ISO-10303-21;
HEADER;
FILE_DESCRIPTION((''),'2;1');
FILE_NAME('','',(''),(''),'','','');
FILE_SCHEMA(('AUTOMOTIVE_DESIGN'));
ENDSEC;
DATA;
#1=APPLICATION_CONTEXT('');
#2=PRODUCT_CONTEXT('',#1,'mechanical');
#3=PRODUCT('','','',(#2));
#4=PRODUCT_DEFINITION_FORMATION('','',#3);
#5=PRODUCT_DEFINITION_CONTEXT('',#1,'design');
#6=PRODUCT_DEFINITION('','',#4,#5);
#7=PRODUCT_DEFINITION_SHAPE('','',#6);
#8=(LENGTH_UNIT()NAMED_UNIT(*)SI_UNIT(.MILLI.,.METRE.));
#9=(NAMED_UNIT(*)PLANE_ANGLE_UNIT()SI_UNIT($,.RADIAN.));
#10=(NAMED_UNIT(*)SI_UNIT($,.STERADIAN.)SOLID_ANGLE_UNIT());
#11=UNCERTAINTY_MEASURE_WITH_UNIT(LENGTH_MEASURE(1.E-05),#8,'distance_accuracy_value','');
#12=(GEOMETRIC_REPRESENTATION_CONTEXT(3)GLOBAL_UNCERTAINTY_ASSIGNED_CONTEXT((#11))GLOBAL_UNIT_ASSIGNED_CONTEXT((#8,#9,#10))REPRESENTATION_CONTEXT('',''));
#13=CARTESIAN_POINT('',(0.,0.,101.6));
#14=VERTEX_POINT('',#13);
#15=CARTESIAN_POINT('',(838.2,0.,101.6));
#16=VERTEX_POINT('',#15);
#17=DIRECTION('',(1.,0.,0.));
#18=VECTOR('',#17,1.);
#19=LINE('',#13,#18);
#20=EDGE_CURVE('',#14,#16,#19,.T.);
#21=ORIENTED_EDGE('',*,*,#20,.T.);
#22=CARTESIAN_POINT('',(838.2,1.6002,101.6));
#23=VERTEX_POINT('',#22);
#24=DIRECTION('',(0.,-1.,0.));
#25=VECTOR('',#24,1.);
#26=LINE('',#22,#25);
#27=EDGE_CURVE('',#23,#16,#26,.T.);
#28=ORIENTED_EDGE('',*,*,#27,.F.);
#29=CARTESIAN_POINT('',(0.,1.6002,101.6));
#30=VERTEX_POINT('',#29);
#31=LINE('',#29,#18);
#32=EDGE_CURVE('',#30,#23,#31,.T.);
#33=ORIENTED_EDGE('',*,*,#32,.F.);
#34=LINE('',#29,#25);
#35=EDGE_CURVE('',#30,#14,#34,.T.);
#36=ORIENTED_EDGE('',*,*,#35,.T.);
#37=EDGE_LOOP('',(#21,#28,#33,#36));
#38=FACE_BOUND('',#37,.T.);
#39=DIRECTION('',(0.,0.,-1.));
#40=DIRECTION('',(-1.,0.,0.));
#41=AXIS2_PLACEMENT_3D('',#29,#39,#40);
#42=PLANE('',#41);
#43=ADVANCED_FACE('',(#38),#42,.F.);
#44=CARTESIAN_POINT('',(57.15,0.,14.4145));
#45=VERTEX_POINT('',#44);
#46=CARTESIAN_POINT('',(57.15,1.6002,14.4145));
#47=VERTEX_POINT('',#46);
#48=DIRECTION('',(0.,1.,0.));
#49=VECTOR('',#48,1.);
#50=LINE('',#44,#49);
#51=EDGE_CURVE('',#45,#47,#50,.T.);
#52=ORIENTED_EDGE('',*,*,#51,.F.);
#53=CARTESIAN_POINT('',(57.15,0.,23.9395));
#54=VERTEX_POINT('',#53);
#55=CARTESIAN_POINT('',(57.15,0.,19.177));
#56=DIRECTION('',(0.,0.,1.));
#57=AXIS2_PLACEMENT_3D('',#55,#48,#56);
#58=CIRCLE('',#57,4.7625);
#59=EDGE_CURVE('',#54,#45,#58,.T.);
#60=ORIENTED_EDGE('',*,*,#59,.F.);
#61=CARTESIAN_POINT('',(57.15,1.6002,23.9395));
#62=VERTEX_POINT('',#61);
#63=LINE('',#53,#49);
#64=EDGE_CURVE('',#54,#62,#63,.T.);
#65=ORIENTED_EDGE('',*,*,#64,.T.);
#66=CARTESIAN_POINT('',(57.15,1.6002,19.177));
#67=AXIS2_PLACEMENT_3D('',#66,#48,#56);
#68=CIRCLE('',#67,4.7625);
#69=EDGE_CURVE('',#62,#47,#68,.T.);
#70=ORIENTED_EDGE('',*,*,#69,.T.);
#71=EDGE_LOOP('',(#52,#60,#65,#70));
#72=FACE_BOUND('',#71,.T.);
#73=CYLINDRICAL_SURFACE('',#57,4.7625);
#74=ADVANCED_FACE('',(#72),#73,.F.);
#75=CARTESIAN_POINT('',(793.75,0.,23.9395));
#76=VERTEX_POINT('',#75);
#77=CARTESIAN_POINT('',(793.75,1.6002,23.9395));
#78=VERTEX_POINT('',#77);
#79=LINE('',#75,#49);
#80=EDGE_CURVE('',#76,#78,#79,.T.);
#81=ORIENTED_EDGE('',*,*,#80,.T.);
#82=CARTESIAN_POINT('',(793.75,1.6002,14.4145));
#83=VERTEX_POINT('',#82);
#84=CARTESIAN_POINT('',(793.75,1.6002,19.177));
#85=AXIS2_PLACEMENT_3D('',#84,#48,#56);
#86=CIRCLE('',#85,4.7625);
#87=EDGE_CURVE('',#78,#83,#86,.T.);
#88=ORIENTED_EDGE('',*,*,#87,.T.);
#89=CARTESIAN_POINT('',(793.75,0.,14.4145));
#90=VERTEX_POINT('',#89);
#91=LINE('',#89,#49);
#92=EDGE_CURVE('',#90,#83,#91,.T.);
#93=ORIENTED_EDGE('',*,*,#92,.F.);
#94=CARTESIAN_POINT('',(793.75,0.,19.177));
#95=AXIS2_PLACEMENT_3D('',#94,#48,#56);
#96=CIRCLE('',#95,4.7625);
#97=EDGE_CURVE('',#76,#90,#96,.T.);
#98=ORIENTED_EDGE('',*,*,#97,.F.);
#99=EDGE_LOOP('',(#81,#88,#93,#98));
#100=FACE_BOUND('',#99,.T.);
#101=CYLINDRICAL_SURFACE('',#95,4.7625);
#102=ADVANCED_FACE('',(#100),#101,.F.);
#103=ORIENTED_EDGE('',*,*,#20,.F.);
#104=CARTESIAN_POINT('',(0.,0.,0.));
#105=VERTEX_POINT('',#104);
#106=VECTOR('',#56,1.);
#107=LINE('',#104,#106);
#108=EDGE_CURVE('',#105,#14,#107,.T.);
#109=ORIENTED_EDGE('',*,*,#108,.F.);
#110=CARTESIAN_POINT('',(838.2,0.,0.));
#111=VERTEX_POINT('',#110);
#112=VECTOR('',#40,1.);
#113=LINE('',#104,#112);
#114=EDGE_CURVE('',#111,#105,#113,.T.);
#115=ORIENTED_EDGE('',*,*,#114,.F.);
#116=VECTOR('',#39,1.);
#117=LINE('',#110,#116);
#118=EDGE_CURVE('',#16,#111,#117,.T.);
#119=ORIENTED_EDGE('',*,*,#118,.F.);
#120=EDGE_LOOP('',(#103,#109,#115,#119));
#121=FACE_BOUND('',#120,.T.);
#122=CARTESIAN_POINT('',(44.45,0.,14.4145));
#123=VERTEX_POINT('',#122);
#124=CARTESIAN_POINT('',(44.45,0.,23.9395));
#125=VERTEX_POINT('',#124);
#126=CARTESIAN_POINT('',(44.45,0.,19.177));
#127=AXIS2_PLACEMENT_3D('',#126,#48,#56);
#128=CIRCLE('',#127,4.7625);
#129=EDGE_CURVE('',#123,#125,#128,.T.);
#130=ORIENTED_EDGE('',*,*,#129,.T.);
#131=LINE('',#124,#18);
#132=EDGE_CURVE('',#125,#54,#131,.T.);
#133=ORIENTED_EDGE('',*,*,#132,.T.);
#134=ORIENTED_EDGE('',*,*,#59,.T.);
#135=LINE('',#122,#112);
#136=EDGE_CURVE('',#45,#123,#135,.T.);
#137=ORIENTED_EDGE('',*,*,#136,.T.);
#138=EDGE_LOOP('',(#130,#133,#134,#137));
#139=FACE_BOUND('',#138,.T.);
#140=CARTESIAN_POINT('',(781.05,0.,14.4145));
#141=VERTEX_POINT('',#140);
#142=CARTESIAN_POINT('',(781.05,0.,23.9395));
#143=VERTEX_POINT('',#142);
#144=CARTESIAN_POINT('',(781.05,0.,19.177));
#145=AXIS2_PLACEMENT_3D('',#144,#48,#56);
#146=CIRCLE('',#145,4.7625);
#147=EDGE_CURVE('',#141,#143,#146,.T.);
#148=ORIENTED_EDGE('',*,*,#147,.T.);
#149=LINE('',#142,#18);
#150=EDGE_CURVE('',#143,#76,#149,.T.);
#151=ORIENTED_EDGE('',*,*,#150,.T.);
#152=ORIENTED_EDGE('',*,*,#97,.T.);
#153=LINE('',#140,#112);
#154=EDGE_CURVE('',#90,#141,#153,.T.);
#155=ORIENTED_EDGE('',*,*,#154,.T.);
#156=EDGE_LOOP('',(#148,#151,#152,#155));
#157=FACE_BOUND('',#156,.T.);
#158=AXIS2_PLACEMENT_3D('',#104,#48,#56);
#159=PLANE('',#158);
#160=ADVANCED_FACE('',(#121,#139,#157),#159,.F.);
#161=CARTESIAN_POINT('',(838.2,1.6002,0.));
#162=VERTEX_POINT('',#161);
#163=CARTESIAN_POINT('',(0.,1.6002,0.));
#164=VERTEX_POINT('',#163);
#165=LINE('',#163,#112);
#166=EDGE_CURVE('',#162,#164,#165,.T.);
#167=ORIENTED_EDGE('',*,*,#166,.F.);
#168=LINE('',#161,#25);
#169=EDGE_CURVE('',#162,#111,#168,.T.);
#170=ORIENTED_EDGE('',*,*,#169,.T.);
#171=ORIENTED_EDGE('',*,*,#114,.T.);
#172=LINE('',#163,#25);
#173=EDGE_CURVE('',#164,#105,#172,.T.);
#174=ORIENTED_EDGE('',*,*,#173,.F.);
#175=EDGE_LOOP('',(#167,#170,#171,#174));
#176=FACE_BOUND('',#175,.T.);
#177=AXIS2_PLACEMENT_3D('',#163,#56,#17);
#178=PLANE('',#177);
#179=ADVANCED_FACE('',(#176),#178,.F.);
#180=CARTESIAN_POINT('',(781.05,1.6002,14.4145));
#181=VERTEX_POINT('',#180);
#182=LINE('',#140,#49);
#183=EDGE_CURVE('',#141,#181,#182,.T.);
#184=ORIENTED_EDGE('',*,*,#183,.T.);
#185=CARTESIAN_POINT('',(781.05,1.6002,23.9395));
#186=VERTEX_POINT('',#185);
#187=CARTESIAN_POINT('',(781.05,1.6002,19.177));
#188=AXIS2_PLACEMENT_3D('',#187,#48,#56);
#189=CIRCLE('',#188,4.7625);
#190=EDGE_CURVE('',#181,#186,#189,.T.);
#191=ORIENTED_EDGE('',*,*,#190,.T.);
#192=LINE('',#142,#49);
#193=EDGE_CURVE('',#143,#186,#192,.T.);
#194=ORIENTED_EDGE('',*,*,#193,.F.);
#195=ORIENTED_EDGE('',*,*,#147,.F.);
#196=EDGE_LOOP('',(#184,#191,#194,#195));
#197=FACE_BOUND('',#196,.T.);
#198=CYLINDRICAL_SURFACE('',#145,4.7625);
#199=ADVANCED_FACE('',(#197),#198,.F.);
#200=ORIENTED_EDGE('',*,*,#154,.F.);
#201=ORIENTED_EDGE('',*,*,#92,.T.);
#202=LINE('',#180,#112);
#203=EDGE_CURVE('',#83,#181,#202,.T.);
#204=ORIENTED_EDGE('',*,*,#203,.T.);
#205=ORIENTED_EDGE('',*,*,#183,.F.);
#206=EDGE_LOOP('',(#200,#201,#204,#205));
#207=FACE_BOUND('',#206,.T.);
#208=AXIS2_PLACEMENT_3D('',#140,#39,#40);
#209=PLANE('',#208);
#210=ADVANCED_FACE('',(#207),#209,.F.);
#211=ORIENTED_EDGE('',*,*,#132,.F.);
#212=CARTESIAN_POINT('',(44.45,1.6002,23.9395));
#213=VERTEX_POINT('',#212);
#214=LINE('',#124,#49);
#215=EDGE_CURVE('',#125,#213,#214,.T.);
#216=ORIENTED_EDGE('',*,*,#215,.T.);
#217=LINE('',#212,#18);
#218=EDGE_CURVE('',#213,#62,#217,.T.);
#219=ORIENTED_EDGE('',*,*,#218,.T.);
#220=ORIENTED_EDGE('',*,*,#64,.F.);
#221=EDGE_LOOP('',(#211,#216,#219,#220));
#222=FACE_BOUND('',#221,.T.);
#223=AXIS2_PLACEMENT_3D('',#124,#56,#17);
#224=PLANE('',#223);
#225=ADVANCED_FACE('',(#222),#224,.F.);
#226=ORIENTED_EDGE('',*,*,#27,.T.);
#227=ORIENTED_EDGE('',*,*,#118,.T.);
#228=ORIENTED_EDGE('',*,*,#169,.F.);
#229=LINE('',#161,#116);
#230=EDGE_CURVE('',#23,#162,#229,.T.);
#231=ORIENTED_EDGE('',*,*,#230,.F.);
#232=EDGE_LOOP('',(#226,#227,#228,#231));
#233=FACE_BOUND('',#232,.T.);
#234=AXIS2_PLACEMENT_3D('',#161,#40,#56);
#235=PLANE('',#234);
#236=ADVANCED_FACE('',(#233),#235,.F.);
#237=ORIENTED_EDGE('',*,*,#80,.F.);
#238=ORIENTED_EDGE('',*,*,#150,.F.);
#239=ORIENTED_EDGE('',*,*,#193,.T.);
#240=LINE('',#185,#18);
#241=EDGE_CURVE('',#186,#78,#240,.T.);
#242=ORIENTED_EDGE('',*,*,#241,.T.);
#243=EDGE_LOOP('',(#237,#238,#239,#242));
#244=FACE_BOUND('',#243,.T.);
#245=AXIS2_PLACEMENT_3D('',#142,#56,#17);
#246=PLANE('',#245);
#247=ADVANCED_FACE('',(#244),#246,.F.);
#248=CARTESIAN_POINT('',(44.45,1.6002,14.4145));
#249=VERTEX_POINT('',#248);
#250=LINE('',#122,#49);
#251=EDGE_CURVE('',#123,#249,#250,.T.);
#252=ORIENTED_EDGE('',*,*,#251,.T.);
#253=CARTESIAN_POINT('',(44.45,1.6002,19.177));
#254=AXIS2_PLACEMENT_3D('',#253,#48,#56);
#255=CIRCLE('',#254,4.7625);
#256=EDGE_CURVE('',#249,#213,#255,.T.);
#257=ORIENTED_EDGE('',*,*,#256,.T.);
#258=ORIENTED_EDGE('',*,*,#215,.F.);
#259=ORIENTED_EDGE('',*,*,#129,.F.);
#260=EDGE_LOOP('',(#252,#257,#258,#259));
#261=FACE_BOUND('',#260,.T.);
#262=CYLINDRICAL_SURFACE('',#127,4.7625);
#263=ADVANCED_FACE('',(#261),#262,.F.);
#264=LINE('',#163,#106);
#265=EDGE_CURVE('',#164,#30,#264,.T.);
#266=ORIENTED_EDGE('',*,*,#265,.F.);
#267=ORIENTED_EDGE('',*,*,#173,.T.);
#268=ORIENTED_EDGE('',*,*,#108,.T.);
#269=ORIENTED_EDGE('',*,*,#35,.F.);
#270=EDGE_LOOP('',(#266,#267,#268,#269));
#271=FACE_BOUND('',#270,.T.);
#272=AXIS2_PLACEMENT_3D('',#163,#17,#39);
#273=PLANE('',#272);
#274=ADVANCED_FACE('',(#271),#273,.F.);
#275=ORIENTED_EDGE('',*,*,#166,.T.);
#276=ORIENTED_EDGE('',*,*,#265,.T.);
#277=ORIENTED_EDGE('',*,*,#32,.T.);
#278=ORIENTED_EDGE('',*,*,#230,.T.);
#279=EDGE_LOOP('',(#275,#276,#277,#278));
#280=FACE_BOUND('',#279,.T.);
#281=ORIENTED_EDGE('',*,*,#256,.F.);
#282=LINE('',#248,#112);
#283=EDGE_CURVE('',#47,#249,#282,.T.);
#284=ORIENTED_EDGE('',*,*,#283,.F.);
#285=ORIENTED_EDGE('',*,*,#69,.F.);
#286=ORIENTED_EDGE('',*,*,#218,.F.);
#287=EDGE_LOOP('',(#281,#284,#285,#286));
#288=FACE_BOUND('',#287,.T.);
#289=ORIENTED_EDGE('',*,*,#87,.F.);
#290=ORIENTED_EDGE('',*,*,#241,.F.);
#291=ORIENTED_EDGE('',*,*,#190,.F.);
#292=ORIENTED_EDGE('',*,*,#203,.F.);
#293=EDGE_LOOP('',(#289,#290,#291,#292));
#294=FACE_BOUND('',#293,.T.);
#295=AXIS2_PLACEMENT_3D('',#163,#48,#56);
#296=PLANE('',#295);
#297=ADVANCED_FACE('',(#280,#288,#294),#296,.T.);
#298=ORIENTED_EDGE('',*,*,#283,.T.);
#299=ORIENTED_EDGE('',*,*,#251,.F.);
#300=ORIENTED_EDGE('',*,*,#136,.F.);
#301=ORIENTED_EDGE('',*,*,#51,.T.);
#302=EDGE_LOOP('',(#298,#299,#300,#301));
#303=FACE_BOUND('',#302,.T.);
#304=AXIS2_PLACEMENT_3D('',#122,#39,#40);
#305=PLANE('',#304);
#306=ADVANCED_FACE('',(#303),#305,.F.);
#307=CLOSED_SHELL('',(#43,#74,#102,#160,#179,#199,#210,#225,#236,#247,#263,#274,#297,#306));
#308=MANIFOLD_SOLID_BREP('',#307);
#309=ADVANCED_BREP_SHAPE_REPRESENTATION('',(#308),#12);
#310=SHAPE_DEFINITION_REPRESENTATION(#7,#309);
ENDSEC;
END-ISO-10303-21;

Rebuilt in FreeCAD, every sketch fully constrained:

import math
import FreeCAD as App
import Part
import Sketcher
Q = App.Units.Quantity


def add_polygon(sketch, points):
    """Adds a closed chain of lines whose ends are joined by coincident constraints."""
    first, n = sketch.GeometryCount, len(points)
    for a, b in zip(points, points[1:] + points[:1]):
        sketch.addGeometry(Part.LineSegment(App.Vector(*a, 0), App.Vector(*b, 0)), False)
    for i in range(n):
        sketch.addConstraint(Sketcher.Constraint("Coincident", first + i, 2, first + (i + 1) % n, 1))

doc = App.newDocument("Part")
params = doc.addObject("Spreadsheet::Sheet", "Params")
for row, (alias, value) in enumerate([
    ("sketch1_width", "33 in"),
    ("sketch1_height", "4 in"),
    ("pad1_length", "0.063 in"),
    ("sketch2_width", "0.5 in"),
    ("sketch2_radius", "0.1875 in"),
], start=1):
    params.set(f"A{row}", alias)
    params.set(f"B{row}", "=" + value)
    params.setAlias(f"B{row}", alias)

body = doc.addObject("PartDesign::Body", "Body")

# Sketch on XZ plane
sketch1 = doc.addObject("Sketcher::SketchObject", "Sketch")
body.addObject(sketch1)
sketch1.AttachmentSupport = (doc.XZ_Plane, [""])
sketch1.MapMode = "FlatFace"
add_polygon(sketch1, [(0, 0), (0, 101.6), (838.2, 101.6), (838.2, 0)])  # lines 0-3
sketch1.addConstraint([
    Sketcher.Constraint("Vertical", 0),
    Sketcher.Constraint("Horizontal", 1),
    Sketcher.Constraint("Vertical", 2),
    Sketcher.Constraint("Horizontal", 3),
    Sketcher.Constraint("Coincident", 3, 2, -1, 1),
    Sketcher.Constraint("DistanceX", 1, 1, 1, 2, Q("33 in")),
    Sketcher.Constraint("DistanceY", 0, 1, 0, 2, Q("4 in")),
])
sketch1.setExpression("Constraints[9]", "Params.sketch1_width")
sketch1.setExpression("Constraints[10]", "Params.sketch1_height")
pad1 = doc.addObject("PartDesign::Pad", "Pad")
body.addObject(pad1)
pad1.Profile = sketch1
pad1.setExpression("Length", "Params.pad1_length")
pad1.Reversed = True

# Sketch on XZ plane
sketch2 = doc.addObject("Sketcher::SketchObject", "Sketch001")
body.addObject(sketch2)
sketch2.AttachmentSupport = (doc.XZ_Plane, [""])
sketch2.MapMode = "FlatFace"
sketch2.AttachmentOffset = App.Placement(App.Vector(0, 0, -0.063 * 25.4), App.Rotation())
sketch2.addGeometry([
    Part.LineSegment(App.Vector(57.15, 14.4145, 0), App.Vector(44.45, 14.4145, 0)),  # 0
    Part.ArcOfCircle(Part.Circle(App.Vector(44.45, 19.177, 0), App.Vector(0, 0, 1), 4.7625), math.radians(90), math.radians(270)),  # 1
    Part.LineSegment(App.Vector(44.45, 23.9395, 0), App.Vector(57.15, 23.9395, 0)),  # 2
    Part.ArcOfCircle(Part.Circle(App.Vector(57.15, 19.177, 0), App.Vector(0, 0, 1), 4.7625), math.radians(-90), math.radians(90)),  # 3
    Part.LineSegment(App.Vector(793.75, 14.4145, 0), App.Vector(781.05, 14.4145, 0)),  # 4
    Part.ArcOfCircle(Part.Circle(App.Vector(781.05, 19.177, 0), App.Vector(0, 0, 1), 4.7625), math.radians(90), math.radians(270)),  # 5
    Part.LineSegment(App.Vector(781.05, 23.9395, 0), App.Vector(793.75, 23.9395, 0)),  # 6
    Part.ArcOfCircle(Part.Circle(App.Vector(793.75, 19.177, 0), App.Vector(0, 0, 1), 4.7625), math.radians(-90), math.radians(90)),  # 7
], False)
sketch2.addConstraint([
    Sketcher.Constraint("Tangent", 0, 2, 1, 2),
    Sketcher.Constraint("Tangent", 1, 1, 2, 1),
    Sketcher.Constraint("Tangent", 2, 2, 3, 2),
    Sketcher.Constraint("Tangent", 3, 1, 0, 1),
    Sketcher.Constraint("Tangent", 4, 2, 5, 2),
    Sketcher.Constraint("Tangent", 5, 1, 6, 1),
    Sketcher.Constraint("Tangent", 6, 2, 7, 2),
    Sketcher.Constraint("Tangent", 7, 1, 4, 1),
    Sketcher.Constraint("Horizontal", 0),
    Sketcher.Constraint("Horizontal", 2),
    Sketcher.Constraint("Horizontal", 4),
    Sketcher.Constraint("Horizontal", 6),
    Sketcher.Constraint("Equal", 3, 5),
    Sketcher.Constraint("Horizontal", 3, 3, 5, 3),
    Sketcher.Constraint("Equal", 2, 4),
    Sketcher.Constraint("DistanceX", 0, 2, 0, 1, Q("0.5 in")),
    Sketcher.Constraint("Radius", 1, Q("0.1875 in")),
    Sketcher.Constraint("DistanceX", 1, 3, 5, 3, Q("29 in")),
    Sketcher.Constraint("DistanceX", -1, 1, 1, 3, Q("1.75 in")),
    Sketcher.Constraint("DistanceY", -1, 1, 1, 3, Q("0.755 in")),
])
sketch2.setExpression("Constraints[15]", "Params.sketch2_width")
sketch2.setExpression("Constraints[16]", "Params.sketch2_radius")
pocket1 = doc.addObject("PartDesign::Pocket", "Pocket")
body.addObject(pocket1)
pocket1.Profile = sketch2
pocket1.Type = "ThroughAll"
pocket1.Reversed = True

doc.recompute()
